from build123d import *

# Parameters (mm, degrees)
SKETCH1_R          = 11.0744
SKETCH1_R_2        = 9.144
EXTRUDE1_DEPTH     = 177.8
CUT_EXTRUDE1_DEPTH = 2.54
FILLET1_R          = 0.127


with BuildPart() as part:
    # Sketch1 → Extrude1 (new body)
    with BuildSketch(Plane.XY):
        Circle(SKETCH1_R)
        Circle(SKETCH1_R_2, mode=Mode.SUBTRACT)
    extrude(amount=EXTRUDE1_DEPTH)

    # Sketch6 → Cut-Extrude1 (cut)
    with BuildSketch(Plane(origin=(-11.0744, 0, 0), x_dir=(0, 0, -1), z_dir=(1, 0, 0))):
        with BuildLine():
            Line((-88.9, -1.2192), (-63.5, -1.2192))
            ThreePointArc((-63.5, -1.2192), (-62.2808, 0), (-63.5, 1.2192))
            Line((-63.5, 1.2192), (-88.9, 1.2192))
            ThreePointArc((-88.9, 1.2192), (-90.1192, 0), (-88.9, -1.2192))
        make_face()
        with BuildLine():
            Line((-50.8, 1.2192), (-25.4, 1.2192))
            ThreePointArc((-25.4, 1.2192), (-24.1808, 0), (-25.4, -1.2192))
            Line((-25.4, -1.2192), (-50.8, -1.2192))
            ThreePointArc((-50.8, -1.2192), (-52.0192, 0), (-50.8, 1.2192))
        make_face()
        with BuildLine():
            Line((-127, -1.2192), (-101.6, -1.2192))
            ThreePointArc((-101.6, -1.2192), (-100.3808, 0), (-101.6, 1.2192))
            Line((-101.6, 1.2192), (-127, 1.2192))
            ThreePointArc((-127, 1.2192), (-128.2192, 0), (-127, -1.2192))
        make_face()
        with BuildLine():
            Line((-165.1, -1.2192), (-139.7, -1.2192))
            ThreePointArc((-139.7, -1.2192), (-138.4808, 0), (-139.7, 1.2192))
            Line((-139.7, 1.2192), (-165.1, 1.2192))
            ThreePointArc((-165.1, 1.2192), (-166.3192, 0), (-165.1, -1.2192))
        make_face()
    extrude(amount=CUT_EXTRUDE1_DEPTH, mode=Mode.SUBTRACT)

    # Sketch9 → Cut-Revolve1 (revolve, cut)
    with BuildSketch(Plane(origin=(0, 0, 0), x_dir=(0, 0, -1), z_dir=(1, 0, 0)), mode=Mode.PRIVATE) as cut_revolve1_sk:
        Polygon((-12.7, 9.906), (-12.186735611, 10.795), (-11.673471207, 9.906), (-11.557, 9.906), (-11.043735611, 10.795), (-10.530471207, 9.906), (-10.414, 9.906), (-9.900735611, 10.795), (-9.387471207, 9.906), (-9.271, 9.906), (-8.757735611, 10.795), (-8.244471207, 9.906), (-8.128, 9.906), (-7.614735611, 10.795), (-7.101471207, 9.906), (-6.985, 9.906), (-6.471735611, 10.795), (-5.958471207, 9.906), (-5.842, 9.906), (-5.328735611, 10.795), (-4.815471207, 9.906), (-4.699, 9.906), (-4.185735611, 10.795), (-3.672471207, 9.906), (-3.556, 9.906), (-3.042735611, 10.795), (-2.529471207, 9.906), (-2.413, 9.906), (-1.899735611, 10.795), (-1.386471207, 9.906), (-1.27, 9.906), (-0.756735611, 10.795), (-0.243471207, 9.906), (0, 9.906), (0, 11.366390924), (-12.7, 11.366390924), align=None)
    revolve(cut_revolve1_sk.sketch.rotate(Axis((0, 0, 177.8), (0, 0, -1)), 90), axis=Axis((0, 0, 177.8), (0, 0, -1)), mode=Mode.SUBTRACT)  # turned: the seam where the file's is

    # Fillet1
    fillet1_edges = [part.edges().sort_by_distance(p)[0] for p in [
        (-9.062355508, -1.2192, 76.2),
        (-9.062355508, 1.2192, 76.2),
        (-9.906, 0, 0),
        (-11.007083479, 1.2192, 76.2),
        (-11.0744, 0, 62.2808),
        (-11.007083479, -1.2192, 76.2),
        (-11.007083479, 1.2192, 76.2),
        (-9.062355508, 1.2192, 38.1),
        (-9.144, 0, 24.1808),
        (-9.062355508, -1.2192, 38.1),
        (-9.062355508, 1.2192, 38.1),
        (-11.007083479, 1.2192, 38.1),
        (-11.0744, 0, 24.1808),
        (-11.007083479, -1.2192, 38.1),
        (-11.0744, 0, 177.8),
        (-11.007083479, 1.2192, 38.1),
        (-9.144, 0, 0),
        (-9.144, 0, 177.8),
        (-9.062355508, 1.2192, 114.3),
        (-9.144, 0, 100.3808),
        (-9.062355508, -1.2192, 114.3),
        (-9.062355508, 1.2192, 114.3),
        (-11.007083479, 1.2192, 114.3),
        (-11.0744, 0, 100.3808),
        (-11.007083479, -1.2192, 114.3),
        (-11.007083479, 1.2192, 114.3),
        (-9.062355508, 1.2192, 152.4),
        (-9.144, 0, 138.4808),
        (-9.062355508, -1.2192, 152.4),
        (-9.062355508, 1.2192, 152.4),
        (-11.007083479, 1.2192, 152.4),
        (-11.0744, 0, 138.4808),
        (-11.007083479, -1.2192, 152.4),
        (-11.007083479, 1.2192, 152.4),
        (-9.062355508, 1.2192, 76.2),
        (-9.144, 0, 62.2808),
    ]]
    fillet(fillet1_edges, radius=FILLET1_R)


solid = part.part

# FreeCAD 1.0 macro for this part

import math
import FreeCAD as App
import Part
import Sketcher
from FreeCAD import Vector
Q = App.Units.Quantity


def edges_at(feature, points):
    """Names of the edges that pass closest to the given points."""
    edges = feature.Shape.Edges
    near = lambda p: min(range(len(edges)), key=lambda i: edges[i].distToShape(Part.Vertex(*p))[0])
    return sorted({f"Edge{near(p) + 1}" for p in points})


def add_polygon(sketch, points):
    """Adds a closed chain of lines whose ends are joined by coincident constraints."""
    first, n = sketch.GeometryCount, len(points)
    for a, b in zip(points, points[1:] + points[:1]):
        sketch.addGeometry(Part.LineSegment(App.Vector(*a, 0), App.Vector(*b, 0)), False)
    for i in range(n):
        sketch.addConstraint(Sketcher.Constraint("Coincident", first + i, 2, first + (i + 1) % n, 1))

doc = App.newDocument("Part")
body = doc.addObject("PartDesign::Body", "Body")

sketch1 = body.newObject("Sketcher::SketchObject", "Sketch")
sketch1.AttachmentSupport = (doc.getObject("XY_Plane"), [""])
sketch1.MapMode = "FlatFace"
sketch1.addGeometry([
    Part.Circle(Vector(0, 0, 0), Vector(0, 0, 1), 11),
    Part.Circle(Vector(0, 0, 0), Vector(0, 0, 1), 9),
], False)
sketch1.addConstraint([
    Sketcher.Constraint("Coincident", 0, 3, -1, 1),
    Sketcher.Constraint("Coincident", 1, 3, -1, 1),
    Sketcher.Constraint("Diameter", 1, Q("0.72 in")),
    Sketcher.Constraint("Diameter", 0, Q("0.872 in")),
])
pad1 = body.newObject("PartDesign::Pad", "Pad")
pad1.Profile = sketch1
pad1.Length = Q("7 in")

sketch2 = body.newObject("Sketcher::SketchObject", "Sketch001")
sketch2.AttachmentSupport = (doc.getObject("YZ_Plane"), [""])
sketch2.MapMode = "FlatFace"
sketch2.AttachmentOffset = App.Placement(Vector(0, 0, -0.436 * 25.4), App.Rotation())
sketch2.addGeometry([
    Part.LineSegment(Vector(-1.2, 88.9, 0), Vector(-1.2, 63.5, 0)),
    Part.ArcOfCircle(Part.Circle(Vector(0, 63.5, 0), Vector(0, 0, 1), 1.2), math.radians(180), math.radians(360)),
    Part.LineSegment(Vector(1.2, 63.5, 0), Vector(1.2, 88.9, 0)),
    Part.ArcOfCircle(Part.Circle(Vector(0, 88.9, 0), Vector(0, 0, 1), 1.2), math.radians(0), math.radians(180)),
    Part.LineSegment(Vector(1.2, 25.4, 0), Vector(1.2, 50.8, 0)),
    Part.ArcOfCircle(Part.Circle(Vector(0, 50.8, 0), Vector(0, 0, 1), 1.2), math.radians(0), math.radians(180)),
    Part.LineSegment(Vector(-1.2, 50.8, 0), Vector(-1.2, 25.4, 0)),
    Part.ArcOfCircle(Part.Circle(Vector(0, 25.4, 0), Vector(0, 0, 1), 1.2), math.radians(180), math.radians(360)),
    Part.LineSegment(Vector(-1.2, 127, 0), Vector(-1.2, 101.6, 0)),
    Part.ArcOfCircle(Part.Circle(Vector(0, 101.6, 0), Vector(0, 0, 1), 1.2), math.radians(180), math.radians(360)),
    Part.LineSegment(Vector(1.2, 101.6, 0), Vector(1.2, 127, 0)),
    Part.ArcOfCircle(Part.Circle(Vector(0, 127, 0), Vector(0, 0, 1), 1.2), math.radians(0), math.radians(180)),
    Part.LineSegment(Vector(-1.2, 165.1, 0), Vector(-1.2, 139.7, 0)),
    Part.ArcOfCircle(Part.Circle(Vector(0, 139.7, 0), Vector(0, 0, 1), 1.2), math.radians(180), math.radians(360)),
    Part.LineSegment(Vector(1.2, 139.7, 0), Vector(1.2, 165.1, 0)),
    Part.ArcOfCircle(Part.Circle(Vector(0, 165.1, 0), Vector(0, 0, 1), 1.2), math.radians(0), math.radians(180)),
], False)
sketch2.addConstraint([
    Sketcher.Constraint("Tangent", 0, 2, 1, 1),
    Sketcher.Constraint("Tangent", 1, 2, 2, 1),
    Sketcher.Constraint("Tangent", 2, 2, 3, 1),
    Sketcher.Constraint("Tangent", 3, 2, 0, 1),
    Sketcher.Constraint("Tangent", 4, 2, 5, 1),
    Sketcher.Constraint("Tangent", 5, 2, 6, 1),
    Sketcher.Constraint("Tangent", 6, 2, 7, 1),
    Sketcher.Constraint("Tangent", 7, 2, 4, 1),
    Sketcher.Constraint("Tangent", 8, 2, 9, 1),
    Sketcher.Constraint("Tangent", 9, 2, 10, 1),
    Sketcher.Constraint("Tangent", 10, 2, 11, 1),
    Sketcher.Constraint("Tangent", 11, 2, 8, 1),
    Sketcher.Constraint("Tangent", 12, 2, 13, 1),
    Sketcher.Constraint("Tangent", 13, 2, 14, 1),
    Sketcher.Constraint("Tangent", 14, 2, 15, 1),
    Sketcher.Constraint("Tangent", 15, 2, 12, 1),
    Sketcher.Constraint("Vertical", 0),
    Sketcher.Constraint("Vertical", 2),
    Sketcher.Constraint("Vertical", 4),
    Sketcher.Constraint("Vertical", 6),
    Sketcher.Constraint("Vertical", 8),
    Sketcher.Constraint("Vertical", 10),
    Sketcher.Constraint("Vertical", 12),
    Sketcher.Constraint("Vertical", 14),
    Sketcher.Constraint("Equal", 3, 5),
    Sketcher.Constraint("Equal", 7, 9),
    Sketcher.Constraint("Equal", 11, 13),
    Sketcher.Constraint("PointOnObject", 1, 3, -2),
    Sketcher.Constraint("PointOnObject", 5, 3, -2),
    Sketcher.Constraint("PointOnObject", 9, 3, -2),
    Sketcher.Constraint("PointOnObject", 13, 3, -2),
    Sketcher.Constraint("Equal", 2, 4),
    Sketcher.Constraint("Equal", 6, 8),
    Sketcher.Constraint("Equal", 10, 12),
    Sketcher.Constraint("DistanceY", 0, 2, 0, 1, Q("1 in")),
    Sketcher.Constraint("DistanceY", -1, 1, 5, 3, Q("2 in")),
    Sketcher.Constraint("DistanceY", -1, 1, 9, 3, Q("4 in")),
    Sketcher.Constraint("Radius", 1, Q("0.048 in")),
    Sketcher.Constraint("DistanceY", 3, 3, 13, 3, Q("2 in")),
    Sketcher.Constraint("DistanceY", -1, 1, 1, 3, Q("2.5 in")),
])
pocket1 = body.newObject("PartDesign::Pocket", "Pocket")
pocket1.Profile = sketch2
pocket1.Length = Q("0.1 in")
pocket1.Reversed = True

sketch3 = body.newObject("Sketcher::SketchObject", "Sketch002")
sketch3.AttachmentSupport = (doc.getObject("YZ_Plane"), [""])
sketch3.MapMode = "FlatFace"
add_polygon(sketch3, [(9.91, 12.7), (10.79, 12.19), (9.91, 11.67), (9.91, 11.56), (10.79, 11.04), (9.91, 10.53), (9.91, 10.41), (10.79, 9.9), (9.91, 9.39), (9.91, 9.27), (10.79, 8.76), (9.91, 8.24), (9.91, 8.13), (10.79, 7.61), (9.91, 7.1), (9.91, 6.99), (10.79, 6.47), (9.91, 5.96), (9.91, 5.84), (10.79, 5.33), (9.91, 4.82), (9.91, 4.7), (10.79, 4.19), (9.91, 3.67), (9.91, 3.56), (10.79, 3.04), (9.91, 2.53), (9.91, 2.41), (10.79, 1.9), (9.91, 1.39), (9.91, 1.27), (10.79, 0.76), (9.91, 0.24), (9.91, 0), (11.37, 0), (11.37, 12.7)])
sketch3.addConstraint([
    Sketcher.Constraint("Vertical", 2),
    Sketcher.Constraint("Vertical", 5),
    Sketcher.Constraint("Vertical", 8),
    Sketcher.Constraint("Vertical", 11),
    Sketcher.Constraint("Vertical", 14),
    Sketcher.Constraint("Vertical", 17),
    Sketcher.Constraint("Vertical", 20),
    Sketcher.Constraint("Vertical", 23),
    Sketcher.Constraint("Vertical", 26),
    Sketcher.Constraint("Vertical", 29),
    Sketcher.Constraint("Vertical", 32),
    Sketcher.Constraint("Horizontal", 33),
    Sketcher.Constraint("Vertical", 34),
    Sketcher.Constraint("Horizontal", 35),
    Sketcher.Constraint("PointOnObject", 32, 2, -1),
    Sketcher.Constraint("Parallel", 0, 3),
    Sketcher.Constraint("Parallel", 1, 4),
    Sketcher.Constraint("Parallel", 3, 6),
    Sketcher.Constraint("Parallel", 4, 7),
    Sketcher.Constraint("Parallel", 6, 9),
    Sketcher.Constraint("Parallel", 7, 10),
    Sketcher.Constraint("Parallel", 9, 12),
    Sketcher.Constraint("Parallel", 10, 13),
    Sketcher.Constraint("Parallel", 12, 15),
    Sketcher.Constraint("Parallel", 13, 16),
    Sketcher.Constraint("Parallel", 15, 18),
    Sketcher.Constraint("Parallel", 16, 19),
    Sketcher.Constraint("Parallel", 18, 21),
    Sketcher.Constraint("Parallel", 19, 22),
    Sketcher.Constraint("Parallel", 21, 24),
    Sketcher.Constraint("Parallel", 22, 25),
    Sketcher.Constraint("Parallel", 24, 27),
    Sketcher.Constraint("Parallel", 25, 28),
    Sketcher.Constraint("Parallel", 27, 30),
    Sketcher.Constraint("Parallel", 28, 31),
    Sketcher.Constraint("Vertical", 0, 2, 3, 2),
    Sketcher.Constraint("Vertical", 2, 2, 4, 2),
    Sketcher.Constraint("Vertical", 3, 2, 6, 2),
    Sketcher.Constraint("Vertical", 5, 2, 7, 2),
    Sketcher.Constraint("Vertical", 6, 2, 9, 2),
    Sketcher.Constraint("Vertical", 8, 2, 10, 2),
    Sketcher.Constraint("Vertical", 9, 2, 12, 2),
    Sketcher.Constraint("Vertical", 11, 2, 13, 2),
    Sketcher.Constraint("Vertical", 12, 2, 15, 2),
    Sketcher.Constraint("Vertical", 14, 2, 16, 2),
    Sketcher.Constraint("Vertical", 15, 2, 18, 2),
    Sketcher.Constraint("Vertical", 17, 2, 19, 2),
    Sketcher.Constraint("Vertical", 18, 2, 21, 2),
    Sketcher.Constraint("Vertical", 20, 2, 22, 2),
    Sketcher.Constraint("Vertical", 21, 2, 24, 2),
    Sketcher.Constraint("Vertical", 23, 2, 25, 2),
    Sketcher.Constraint("Vertical", 24, 2, 27, 2),
    Sketcher.Constraint("Vertical", 26, 2, 28, 2),
    Sketcher.Constraint("Vertical", 27, 2, 30, 2),
    Sketcher.Constraint("Vertical", 29, 2, 31, 2),
    Sketcher.Constraint("Vertical", 32, 2, 35, 2),
    Sketcher.Constraint("Equal", 2, 5),
    Sketcher.Constraint("Equal", 5, 8),
    Sketcher.Constraint("Equal", 8, 11),
    Sketcher.Constraint("Equal", 11, 14),
    Sketcher.Constraint("Equal", 14, 17),
    Sketcher.Constraint("Equal", 17, 20),
    Sketcher.Constraint("Equal", 20, 23),
    Sketcher.Constraint("Equal", 23, 26),
    Sketcher.Constraint("Equal", 26, 29),
    Sketcher.Constraint("Equal", 0, 1),
    Sketcher.Constraint("DistanceY", 34, 1, 34, 2, Q("0.5 in")),
    Sketcher.Constraint("Angle", 0, Q("-30 deg")),
    Sketcher.Constraint("DistanceX", -1, 1, 1, 2, Q("0.39 in")),
    Sketcher.Constraint("DistanceY", -1, 1, 5, 2, Q("0.41 in")),
    Sketcher.Constraint("DistanceX", -1, 1, 0, 2, Q("0.425 in")),
    Sketcher.Constraint("DistanceX", 33, 1, 33, 2, Q("1.460391 mm")),
])
groove = body.newObject("PartDesign::Groove", "Groove")
groove.Profile = sketch3
groove.ReferenceAxis = (sketch3, ["V_Axis"])
groove.Angle = 360
doc.recompute()

fillet = body.newObject("PartDesign::Fillet", "Fillet")
fillet.Base = (groove, edges_at(groove, [
    (-9.062, -1.219, 76.2),
    (-9.062, 1.219, 76.2),
    (-9.906, 0, 0),
    (-11.007, 1.219, 76.2),
    (-11.074, 0, 62.281),
    (-11.007, -1.219, 76.2),
    (-11.007, 1.219, 76.2),
    (-9.062, 1.219, 38.1),
    (-9.144, 0, 24.181),
    (-9.062, -1.219, 38.1),
    (-9.062, 1.219, 38.1),
    (-11.007, 1.219, 38.1),
    (-11.074, 0, 24.181),
    (-11.007, -1.219, 38.1),
    (-11.074, 0, 177.8),
    (-11.007, 1.219, 38.1),
    (-9.144, 0, 0),
    (-9.144, 0, 177.8),
    (-9.062, 1.219, 114.3),
    (-9.144, 0, 100.381),
    (-9.062, -1.219, 114.3),
    (-9.062, 1.219, 114.3),
    (-11.007, 1.219, 114.3),
    (-11.074, 0, 100.381),
    (-11.007, -1.219, 114.3),
    (-11.007, 1.219, 114.3),
    (-9.062, 1.219, 152.4),
    (-9.144, 0, 138.481),
    (-9.062, -1.219, 152.4),
    (-9.062, 1.219, 152.4),
    (-11.007, 1.219, 152.4),
    (-11.074, 0, 138.481),
    (-11.007, -1.219, 152.4),
    (-11.007, 1.219, 152.4),
    (-9.062, 1.219, 76.2),
    (-9.144, 0, 62.281),
]))
fillet.Radius = Q("0.005 in")

doc.recompute()
